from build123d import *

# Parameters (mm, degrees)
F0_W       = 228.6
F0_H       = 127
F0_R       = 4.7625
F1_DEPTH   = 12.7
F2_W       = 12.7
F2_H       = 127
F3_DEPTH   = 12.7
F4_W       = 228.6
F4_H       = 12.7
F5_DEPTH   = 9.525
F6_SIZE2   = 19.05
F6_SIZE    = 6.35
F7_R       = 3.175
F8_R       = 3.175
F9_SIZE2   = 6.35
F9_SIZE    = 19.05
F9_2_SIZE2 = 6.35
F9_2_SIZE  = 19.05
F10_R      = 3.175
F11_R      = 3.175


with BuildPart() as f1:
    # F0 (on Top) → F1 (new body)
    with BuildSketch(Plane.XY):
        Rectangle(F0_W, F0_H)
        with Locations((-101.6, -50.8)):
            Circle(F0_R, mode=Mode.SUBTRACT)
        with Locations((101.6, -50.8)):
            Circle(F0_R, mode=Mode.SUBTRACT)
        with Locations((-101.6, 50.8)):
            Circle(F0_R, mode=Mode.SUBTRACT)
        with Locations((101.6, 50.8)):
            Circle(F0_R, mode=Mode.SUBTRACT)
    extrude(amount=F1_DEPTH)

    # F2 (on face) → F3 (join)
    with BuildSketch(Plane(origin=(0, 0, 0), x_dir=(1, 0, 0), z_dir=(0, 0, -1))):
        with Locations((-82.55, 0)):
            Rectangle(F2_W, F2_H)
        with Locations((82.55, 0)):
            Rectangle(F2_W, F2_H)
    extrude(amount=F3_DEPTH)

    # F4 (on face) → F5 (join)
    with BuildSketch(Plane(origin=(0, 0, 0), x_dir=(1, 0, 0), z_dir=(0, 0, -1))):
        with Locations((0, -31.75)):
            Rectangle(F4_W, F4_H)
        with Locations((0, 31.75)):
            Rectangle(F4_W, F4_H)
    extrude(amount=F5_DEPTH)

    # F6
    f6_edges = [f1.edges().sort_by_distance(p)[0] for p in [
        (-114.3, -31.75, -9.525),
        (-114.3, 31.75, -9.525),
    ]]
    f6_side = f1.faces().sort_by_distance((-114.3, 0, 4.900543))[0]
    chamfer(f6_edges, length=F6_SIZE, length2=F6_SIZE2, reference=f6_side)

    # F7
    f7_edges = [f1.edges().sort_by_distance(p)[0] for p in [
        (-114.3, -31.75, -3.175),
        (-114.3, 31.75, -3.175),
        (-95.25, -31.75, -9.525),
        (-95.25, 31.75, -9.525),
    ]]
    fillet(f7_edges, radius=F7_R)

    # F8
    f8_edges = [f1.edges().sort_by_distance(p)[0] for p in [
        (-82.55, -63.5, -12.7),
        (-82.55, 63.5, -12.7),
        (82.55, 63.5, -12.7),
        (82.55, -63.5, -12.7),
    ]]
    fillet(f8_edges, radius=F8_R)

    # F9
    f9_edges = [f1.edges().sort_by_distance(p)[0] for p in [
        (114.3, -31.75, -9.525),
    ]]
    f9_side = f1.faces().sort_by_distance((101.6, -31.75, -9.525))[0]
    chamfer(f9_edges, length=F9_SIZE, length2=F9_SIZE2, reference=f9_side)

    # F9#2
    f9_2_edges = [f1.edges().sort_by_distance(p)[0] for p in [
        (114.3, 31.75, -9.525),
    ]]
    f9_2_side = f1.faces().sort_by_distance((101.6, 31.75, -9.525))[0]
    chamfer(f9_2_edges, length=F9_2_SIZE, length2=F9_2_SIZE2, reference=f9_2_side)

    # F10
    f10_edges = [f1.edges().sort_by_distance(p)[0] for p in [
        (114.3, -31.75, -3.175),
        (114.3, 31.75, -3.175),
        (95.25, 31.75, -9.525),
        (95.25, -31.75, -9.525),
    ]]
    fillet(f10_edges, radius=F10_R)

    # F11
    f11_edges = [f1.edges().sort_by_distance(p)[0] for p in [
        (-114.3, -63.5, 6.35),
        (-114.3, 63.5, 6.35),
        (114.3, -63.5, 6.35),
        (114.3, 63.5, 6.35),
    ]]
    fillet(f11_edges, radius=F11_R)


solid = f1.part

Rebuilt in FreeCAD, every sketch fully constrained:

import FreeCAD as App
import Part
import Sketcher
Q = App.Units.Quantity


def edges_at(feature, points):
    """Names of the edges that pass closest to the given points."""
    edges = feature.Shape.Edges
    near = lambda p: min(range(len(edges)), key=lambda i: edges[i].distToShape(Part.Vertex(*p))[0])
    return sorted({f"Edge{near(p) + 1}" for p in points})

doc = App.newDocument("Part")
body = doc.addObject("PartDesign::Body", "Body")

# Sketch on XY plane
sketch1 = body.newObject("Sketcher::SketchObject", "Sketch")
sketch1.AttachmentSupport = (doc.getObject("XY_Plane"), [""])
sketch1.MapMode = "FlatFace"
sketch1.addGeometry([
    Part.LineSegment(App.Vector(-114.3, 63.5, 0), App.Vector(-114.3, -63.5, 0)),  # 0
    Part.LineSegment(App.Vector(-114.3, -63.5, 0), App.Vector(114.3, -63.5, 0)),  # 1
    Part.LineSegment(App.Vector(114.3, -63.5, 0), App.Vector(114.3, 63.5, 0)),  # 2
    Part.LineSegment(App.Vector(114.3, 63.5, 0), App.Vector(-114.3, 63.5, 0)),  # 3
    Part.Circle(App.Vector(-101.6, -50.8, 0), App.Vector(0, 0, 1), 4.8),  # 4
    Part.Circle(App.Vector(101.6, -50.8, 0), App.Vector(0, 0, 1), 4.8),  # 5
    Part.Circle(App.Vector(-101.6, 50.8, 0), App.Vector(0, 0, 1), 4.8),  # 6
    Part.Circle(App.Vector(101.6, 50.8, 0), App.Vector(0, 0, 1), 4.8),  # 7
], False)
sketch1.addConstraint([
    Sketcher.Constraint("Coincident", 0, 2, 1, 1),
    Sketcher.Constraint("Coincident", 1, 2, 2, 1),
    Sketcher.Constraint("Coincident", 2, 2, 3, 1),
    Sketcher.Constraint("Coincident", 3, 2, 0, 1),
    Sketcher.Constraint("Vertical", 0),
    Sketcher.Constraint("Horizontal", 1),
    Sketcher.Constraint("Vertical", 2),
    Sketcher.Constraint("Horizontal", 3),
    Sketcher.Constraint("Equal", 4, 5),
    Sketcher.Constraint("Equal", 5, 6),
    Sketcher.Constraint("Equal", 6, 7),
    Sketcher.Constraint("Symmetric", 5, 3, 6, 3, -1, 1),
    Sketcher.Constraint("Symmetric", 4, 3, 7, 3, -1, 1),
    Sketcher.Constraint("Symmetric", 0, 2, 2, 2, -1, 1),
    Sketcher.Constraint("Symmetric", 4, 3, 5, 3, -2),
    Sketcher.Constraint("DistanceX", 1, 1, 1, 2, Q("9 in")),
    Sketcher.Constraint("DistanceY", 0, 2, 0, 1, Q("5 in")),
    Sketcher.Constraint("Diameter", 4, Q("0.375 in")),
    Sketcher.Constraint("DistanceX", 4, 3, -1, 1, Q("4 in")),
    Sketcher.Constraint("DistanceY", 4, 3, -1, 1, Q("2 in")),
])
pad1 = body.newObject("PartDesign::Pad", "Pad")
pad1.Profile = sketch1
pad1.Length = Q("0.5 in")

# Sketch on XY plane
sketch2 = body.newObject("Sketcher::SketchObject", "Sketch001")
sketch2.AttachmentSupport = (doc.getObject("XY_Plane"), [""])
sketch2.MapMode = "FlatFace"
sketch2.addGeometry([
    Part.LineSegment(App.Vector(-89, -64, 0), App.Vector(-89, 64, 0)),  # 0
    Part.LineSegment(App.Vector(-89, 64, 0), App.Vector(-76, 64, 0)),  # 1
    Part.LineSegment(App.Vector(-76, 64, 0), App.Vector(-76, -64, 0)),  # 2
    Part.LineSegment(App.Vector(-76, -64, 0), App.Vector(-89, -64, 0)),  # 3
    Part.LineSegment(App.Vector(76, -64, 0), App.Vector(76, 64, 0)),  # 4
    Part.LineSegment(App.Vector(76, 64, 0), App.Vector(89, 64, 0)),  # 5
    Part.LineSegment(App.Vector(89, 64, 0), App.Vector(89, -64, 0)),  # 6
    Part.LineSegment(App.Vector(89, -64, 0), App.Vector(76, -64, 0)),  # 7
], False)
sketch2.addConstraint([
    Sketcher.Constraint("Coincident", 0, 2, 1, 1),
    Sketcher.Constraint("Coincident", 1, 2, 2, 1),
    Sketcher.Constraint("Coincident", 2, 2, 3, 1),
    Sketcher.Constraint("Coincident", 3, 2, 0, 1),
    Sketcher.Constraint("Coincident", 4, 2, 5, 1),
    Sketcher.Constraint("Coincident", 5, 2, 6, 1),
    Sketcher.Constraint("Coincident", 6, 2, 7, 1),
    Sketcher.Constraint("Coincident", 7, 2, 4, 1),
    Sketcher.Constraint("Vertical", 0),
    Sketcher.Constraint("Horizontal", 1),
    Sketcher.Constraint("Vertical", 2),
    Sketcher.Constraint("Horizontal", 3),
    Sketcher.Constraint("Vertical", 4),
    Sketcher.Constraint("Horizontal", 5),
    Sketcher.Constraint("Vertical", 6),
    Sketcher.Constraint("Horizontal", 7),
    Sketcher.Constraint("Symmetric", 2, 2, 4, 2, -1, 1),
    Sketcher.Constraint("Symmetric", 0, 2, 6, 2, -1, 1),
    Sketcher.Constraint("Horizontal", 1, 2, 4, 2),
    Sketcher.Constraint("DistanceY", 0, 1, 0, 2, Q("5 in")),
    Sketcher.Constraint("DistanceX", 1, 1, 1, 2, Q("0.5 in")),
    Sketcher.Constraint("DistanceX", 1, 2, -1, 1, Q("3 in")),
])
pad2 = body.newObject("PartDesign::Pad", "Pad001")
pad2.Profile = sketch2
pad2.Length = Q("0.5 in")
pad2.Reversed = True

# Sketch on XY plane
sketch3 = body.newObject("Sketcher::SketchObject", "Sketch002")
sketch3.AttachmentSupport = (doc.getObject("XY_Plane"), [""])
sketch3.MapMode = "FlatFace"
sketch3.addGeometry([
    Part.LineSegment(App.Vector(-114, 25, 0), App.Vector(-114, 38, 0)),  # 0
    Part.LineSegment(App.Vector(-114, 38, 0), App.Vector(114, 38, 0)),  # 1
    Part.LineSegment(App.Vector(114, 38, 0), App.Vector(114, 25, 0)),  # 2
    Part.LineSegment(App.Vector(114, 25, 0), App.Vector(-114, 25, 0)),  # 3
    Part.LineSegment(App.Vector(-114, -38, 0), App.Vector(-114, -25, 0)),  # 4
    Part.LineSegment(App.Vector(-114, -25, 0), App.Vector(114, -25, 0)),  # 5
    Part.LineSegment(App.Vector(114, -25, 0), App.Vector(114, -38, 0)),  # 6
    Part.LineSegment(App.Vector(114, -38, 0), App.Vector(-114, -38, 0)),  # 7
], False)
sketch3.addConstraint([
    Sketcher.Constraint("Coincident", 0, 2, 1, 1),
    Sketcher.Constraint("Coincident", 1, 2, 2, 1),
    Sketcher.Constraint("Coincident", 2, 2, 3, 1),
    Sketcher.Constraint("Coincident", 3, 2, 0, 1),
    Sketcher.Constraint("Coincident", 4, 2, 5, 1),
    Sketcher.Constraint("Coincident", 5, 2, 6, 1),
    Sketcher.Constraint("Coincident", 6, 2, 7, 1),
    Sketcher.Constraint("Coincident", 7, 2, 4, 1),
    Sketcher.Constraint("Vertical", 0),
    Sketcher.Constraint("Horizontal", 1),
    Sketcher.Constraint("Vertical", 2),
    Sketcher.Constraint("Horizontal", 3),
    Sketcher.Constraint("Vertical", 4),
    Sketcher.Constraint("Horizontal", 5),
    Sketcher.Constraint("Vertical", 6),
    Sketcher.Constraint("Horizontal", 7),
    Sketcher.Constraint("Symmetric", 2, 2, 4, 2, -1, 1),
    Sketcher.Constraint("Symmetric", 0, 2, 6, 2, -1, 1),
    Sketcher.Constraint("Vertical", 3, 2, 4, 2),
    Sketcher.Constraint("DistanceX", 1, 1, 1, 2, Q("9 in")),
    Sketcher.Constraint("DistanceY", 0, 1, 0, 2, Q("0.5 in")),
    Sketcher.Constraint("DistanceY", -1, 1, 2, 2, Q("1 in")),
])
pad3 = body.newObject("PartDesign::Pad", "Pad002")
pad3.Profile = sketch3
pad3.Length = Q("0.375 in")
pad3.Reversed = True
doc.recompute()

chamfer = body.newObject("PartDesign::Chamfer", "Chamfer")
chamfer.Base = (pad3, edges_at(pad3, [(-114.3, -31.75, -9.525), (-114.3, 31.75, -9.525)]))
chamfer.ChamferType = "Two distances"
chamfer.Size = Q("0.25 in")
chamfer.Size2 = Q("0.75 in")
chamfer.FlipDirection = True
doc.recompute()

fillet = body.newObject("PartDesign::Fillet", "Fillet")
fillet.Base = (chamfer, edges_at(chamfer, [
    (-114.3, -31.75, -3.175),
    (-114.3, 31.75, -3.175),
    (-95.25, -31.75, -9.525),
    (-95.25, 31.75, -9.525),
]))
fillet.Radius = Q("0.125 in")
doc.recompute()

fillet2 = body.newObject("PartDesign::Fillet", "Fillet001")
fillet2.Base = (fillet, edges_at(fillet, [
    (-82.55, -63.5, -12.7),
    (-82.55, 63.5, -12.7),
    (82.55, 63.5, -12.7),
    (82.55, -63.5, -12.7),
]))
fillet2.Radius = Q("0.125 in")
doc.recompute()

chamfer2 = body.newObject("PartDesign::Chamfer", "Chamfer001")
chamfer2.Base = (fillet2, edges_at(fillet2, [(114.3, -31.75, -9.525)]))
chamfer2.ChamferType = "Two distances"
chamfer2.Size = Q("0.75 in")
chamfer2.Size2 = Q("0.25 in")
chamfer2.FlipDirection = True
doc.recompute()

chamfer3 = body.newObject("PartDesign::Chamfer", "Chamfer002")
chamfer3.Base = (chamfer2, edges_at(chamfer2, [(114.3, 31.75, -9.525)]))
chamfer3.ChamferType = "Two distances"
chamfer3.Size = Q("0.75 in")
chamfer3.Size2 = Q("0.25 in")
chamfer3.FlipDirection = True
doc.recompute()

fillet3 = body.newObject("PartDesign::Fillet", "Fillet002")
fillet3.Base = (chamfer3, edges_at(chamfer3, [
    (114.3, -31.75, -3.175),
    (114.3, 31.75, -3.175),
    (95.25, 31.75, -9.525),
    (95.25, -31.75, -9.525),
]))
fillet3.Radius = Q("0.125 in")
doc.recompute()

fillet4 = body.newObject("PartDesign::Fillet", "Fillet003")
fillet4.Base = (fillet3, edges_at(fillet3, [
    (-114.3, -63.5, 6.35),
    (-114.3, 63.5, 6.35),
    (114.3, -63.5, 6.35),
    (114.3, 63.5, 6.35),
]))
fillet4.Radius = Q("0.125 in")

doc.recompute()
